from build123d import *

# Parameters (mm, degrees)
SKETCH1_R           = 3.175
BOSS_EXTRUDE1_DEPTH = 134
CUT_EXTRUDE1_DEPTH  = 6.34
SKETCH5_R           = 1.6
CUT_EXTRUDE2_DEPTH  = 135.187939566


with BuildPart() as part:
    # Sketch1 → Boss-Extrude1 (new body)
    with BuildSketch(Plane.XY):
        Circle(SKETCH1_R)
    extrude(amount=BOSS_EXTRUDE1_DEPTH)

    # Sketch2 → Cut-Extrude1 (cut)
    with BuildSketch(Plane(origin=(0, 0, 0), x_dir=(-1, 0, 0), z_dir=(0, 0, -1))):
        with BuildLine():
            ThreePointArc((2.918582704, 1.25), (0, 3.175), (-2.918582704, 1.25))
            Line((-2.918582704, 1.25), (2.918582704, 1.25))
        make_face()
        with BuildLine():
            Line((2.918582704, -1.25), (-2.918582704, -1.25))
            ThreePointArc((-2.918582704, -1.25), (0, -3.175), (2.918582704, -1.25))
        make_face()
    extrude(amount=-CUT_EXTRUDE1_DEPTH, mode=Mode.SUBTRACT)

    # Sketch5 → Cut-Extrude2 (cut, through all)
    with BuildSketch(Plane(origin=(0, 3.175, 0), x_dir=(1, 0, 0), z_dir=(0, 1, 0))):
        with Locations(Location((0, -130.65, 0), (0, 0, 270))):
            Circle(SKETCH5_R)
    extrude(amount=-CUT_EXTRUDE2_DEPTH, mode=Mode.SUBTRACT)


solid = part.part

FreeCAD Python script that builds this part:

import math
import FreeCAD as App
import Part
import Sketcher
from FreeCAD import Vector
Q = App.Units.Quantity

doc = App.newDocument("Part")
body = doc.addObject("PartDesign::Body", "Body")

sketch1 = body.newObject("Sketcher::SketchObject", "Sketch")
sketch1.AttachmentSupport = (doc.getObject("XY_Plane"), [""])
sketch1.MapMode = "FlatFace"
sketch1.addGeometry(Part.Circle(Vector(0, 0, 0), Vector(0, 0, 1), 3.2), False)
sketch1.addConstraint(Sketcher.Constraint("Coincident", 0, 3, -1, 1))
sketch1.addConstraint(Sketcher.Constraint("Diameter", 0, Q("6.35 mm")))
pad1 = body.newObject("PartDesign::Pad", "Pad")
pad1.Profile = sketch1
pad1.Length = 134

sketch2 = body.newObject("Sketcher::SketchObject", "Sketch001")
sketch2.AttachmentSupport = (doc.getObject("XY_Plane"), [""])
sketch2.MapMode = "FlatFace"
sketch2.addGeometry(Part.ArcOfCircle(Part.Circle(Vector(0, 0, 0), Vector(0, 0, 1), 3.2), math.radians(23), math.radians(157)), False)
sketch2.addGeometry(Part.LineSegment(Vector(2.9, 1.2, 0), Vector(-2.9, 1.2, 0)), False)
sketch2.addGeometry(Part.LineSegment(Vector(-2.9, -1.2, 0), Vector(2.9, -1.2, 0)), False)
sketch2.addGeometry(Part.ArcOfCircle(Part.Circle(Vector(0, 0, 0), Vector(0, 0, 1), 3.2), math.radians(-157), math.radians(-23)), False)
sketch2.addConstraint(Sketcher.Constraint("Coincident", 0, 1, 1, 1))
sketch2.addConstraint(Sketcher.Constraint("Coincident", 1, 2, 0, 2))
sketch2.addConstraint(Sketcher.Constraint("Coincident", 2, 1, 3, 1))
sketch2.addConstraint(Sketcher.Constraint("Coincident", 3, 2, 2, 2))
sketch2.addConstraint(Sketcher.Constraint("Horizontal", 1))
sketch2.addConstraint(Sketcher.Constraint("Horizontal", 2))
sketch2.addConstraint(Sketcher.Constraint("Coincident", 0, 3, -1, 1))
sketch2.addConstraint(Sketcher.Constraint("Coincident", 3, 3, -1, 1))
sketch2.addConstraint(Sketcher.Constraint("Equal", 0, 3))
sketch2.addConstraint(Sketcher.Constraint("Vertical", 1, 2, 2, 1))
sketch2.addConstraint(Sketcher.Constraint("Radius", 0, Q("3.175 mm")))
sketch2.addConstraint(Sketcher.Constraint("DistanceY", 2, 1, 1, 2, Q("2.5 mm")))
pocket1 = body.newObject("PartDesign::Pocket", "Pocket")
pocket1.Profile = sketch2
pocket1.Length = 6.34
pocket1.Reversed = True

sketch3 = body.newObject("Sketcher::SketchObject", "Sketch002")
sketch3.AttachmentSupport = (doc.getObject("XZ_Plane"), [""])
sketch3.MapMode = "FlatFace"
sketch3.AttachmentOffset = App.Placement(Vector(0, 0, -3.175), App.Rotation())
sketch3.addGeometry(Part.Circle(Vector(0, 130.7, 0), Vector(0, 0, 1), 1.6), False)
sketch3.addConstraint(Sketcher.Constraint("PointOnObject", 0, 3, -2))
sketch3.addConstraint(Sketcher.Constraint("Diameter", 0, Q("3.2 mm")))
sketch3.addConstraint(Sketcher.Constraint("DistanceY", -1, 1, 0, 3, Q("130.65 mm")))
pocket2 = body.newObject("PartDesign::Pocket", "Pocket001")
pocket2.Profile = sketch3
pocket2.Type = "ThroughAll"
pocket2.Reversed = True

doc.recompute()
